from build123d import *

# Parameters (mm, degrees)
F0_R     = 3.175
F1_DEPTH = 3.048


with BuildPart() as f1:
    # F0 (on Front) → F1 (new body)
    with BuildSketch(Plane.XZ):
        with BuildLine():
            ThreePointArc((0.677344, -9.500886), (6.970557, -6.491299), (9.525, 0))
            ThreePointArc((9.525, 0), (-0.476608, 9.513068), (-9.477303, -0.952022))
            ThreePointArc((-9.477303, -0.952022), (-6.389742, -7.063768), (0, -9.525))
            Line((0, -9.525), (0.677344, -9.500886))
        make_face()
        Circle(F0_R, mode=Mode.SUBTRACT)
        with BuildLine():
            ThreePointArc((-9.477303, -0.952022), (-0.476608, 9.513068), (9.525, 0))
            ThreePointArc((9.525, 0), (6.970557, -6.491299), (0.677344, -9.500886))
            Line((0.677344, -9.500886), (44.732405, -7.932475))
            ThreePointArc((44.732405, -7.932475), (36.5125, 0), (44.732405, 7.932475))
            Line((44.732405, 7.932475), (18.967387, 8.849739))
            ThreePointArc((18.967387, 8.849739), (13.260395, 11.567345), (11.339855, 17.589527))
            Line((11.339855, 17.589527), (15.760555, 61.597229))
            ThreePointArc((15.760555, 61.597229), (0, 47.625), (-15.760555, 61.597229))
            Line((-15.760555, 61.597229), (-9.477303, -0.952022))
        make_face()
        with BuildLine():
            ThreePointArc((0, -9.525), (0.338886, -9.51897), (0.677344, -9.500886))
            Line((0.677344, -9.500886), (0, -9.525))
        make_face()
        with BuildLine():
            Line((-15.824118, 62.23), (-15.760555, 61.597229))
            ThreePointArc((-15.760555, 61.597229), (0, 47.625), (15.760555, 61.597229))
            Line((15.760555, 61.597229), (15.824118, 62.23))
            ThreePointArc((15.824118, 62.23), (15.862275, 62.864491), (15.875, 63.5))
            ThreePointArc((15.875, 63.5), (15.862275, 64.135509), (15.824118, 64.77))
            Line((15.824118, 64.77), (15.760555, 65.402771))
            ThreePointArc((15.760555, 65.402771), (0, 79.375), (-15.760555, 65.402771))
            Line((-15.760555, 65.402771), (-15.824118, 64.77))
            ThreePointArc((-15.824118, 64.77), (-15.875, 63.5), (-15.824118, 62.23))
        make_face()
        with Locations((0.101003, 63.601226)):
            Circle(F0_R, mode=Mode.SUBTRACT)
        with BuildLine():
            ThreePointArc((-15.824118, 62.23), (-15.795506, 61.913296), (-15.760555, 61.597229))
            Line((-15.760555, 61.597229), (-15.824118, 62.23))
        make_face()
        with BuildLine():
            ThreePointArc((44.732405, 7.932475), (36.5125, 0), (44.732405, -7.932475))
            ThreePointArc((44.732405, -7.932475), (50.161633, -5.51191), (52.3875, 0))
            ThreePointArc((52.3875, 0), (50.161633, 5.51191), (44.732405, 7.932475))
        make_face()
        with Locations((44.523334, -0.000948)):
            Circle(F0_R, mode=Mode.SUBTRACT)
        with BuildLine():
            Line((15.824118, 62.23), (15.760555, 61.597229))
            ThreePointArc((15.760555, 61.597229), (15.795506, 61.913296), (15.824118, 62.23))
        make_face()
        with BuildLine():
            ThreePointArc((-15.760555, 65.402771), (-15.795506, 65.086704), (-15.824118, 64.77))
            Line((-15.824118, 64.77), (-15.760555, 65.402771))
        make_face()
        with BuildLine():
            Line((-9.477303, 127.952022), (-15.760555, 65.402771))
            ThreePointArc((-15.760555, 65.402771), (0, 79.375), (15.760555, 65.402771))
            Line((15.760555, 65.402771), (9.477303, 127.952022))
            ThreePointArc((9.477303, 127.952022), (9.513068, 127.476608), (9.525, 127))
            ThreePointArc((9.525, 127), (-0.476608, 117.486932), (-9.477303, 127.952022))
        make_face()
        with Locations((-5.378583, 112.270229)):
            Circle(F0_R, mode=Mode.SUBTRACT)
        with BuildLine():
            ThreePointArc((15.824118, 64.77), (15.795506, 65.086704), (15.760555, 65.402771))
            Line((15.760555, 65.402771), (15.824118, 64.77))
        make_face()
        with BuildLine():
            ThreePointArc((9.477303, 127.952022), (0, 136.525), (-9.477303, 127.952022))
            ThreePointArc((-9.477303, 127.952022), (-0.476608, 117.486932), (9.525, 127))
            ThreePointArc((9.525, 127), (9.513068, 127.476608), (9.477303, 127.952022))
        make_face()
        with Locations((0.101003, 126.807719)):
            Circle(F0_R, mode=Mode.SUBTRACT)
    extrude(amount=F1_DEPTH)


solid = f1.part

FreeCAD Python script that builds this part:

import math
import FreeCAD as App
import Part
import Sketcher
from FreeCAD import Vector
Q = App.Units.Quantity

doc = App.newDocument("Part")
body = doc.addObject("PartDesign::Body", "Body")

sketch1 = body.newObject("Sketcher::SketchObject", "Sketch")
sketch1.AttachmentSupport = (doc.getObject("XZ_Plane"), [""])
sketch1.MapMode = "FlatFace"
sketch1.addGeometry([
    Part.LineSegment(Vector(0.677344, -9.500886, 0), Vector(44.732405, -7.932475, 0)),
    Part.ArcOfCircle(Part.Circle(Vector(44.449999, 0.000001, 0), Vector(0, 0, 1), 7.937501), math.radians(-87.961059), math.radians(-0.000005)),
    Part.ArcOfCircle(Part.Circle(Vector(44.449999, -0.000001, 0), Vector(0, 0, 1), 7.937501), math.radians(0.000005), math.radians(87.961059)),
    Part.LineSegment(Vector(44.732405, 7.932475, 0), Vector(18.967387, 8.849739, 0)),
    Part.ArcOfCircle(Part.Circle(Vector(19.250244, 16.794905, 0), Vector(0, 0, 1), 7.9502), math.radians(174.263714), math.radians(267.961067)),
    Part.LineSegment(Vector(11.339855, 17.589527, 0), Vector(15.760555, 61.597229, 0)),
    Part.ArcOfCircle(Part.Circle(Vector(0.002879, 63.499694, 0), Vector(0, 0, 1), 15.872105), math.radians(-6.884149), math.radians(-4.588297)),
    Part.ArcOfCircle(Part.Circle(Vector(0.000869, 63.499971, 0), Vector(0, 0, 1), 15.874131), math.radians(-4.588712), math.radians(0.000105)),
    Part.ArcOfCircle(Part.Circle(Vector(0.000869, 63.500029, 0), Vector(0, 0, 1), 15.874131), math.radians(-0.000105), math.radians(4.588712)),
    Part.ArcOfCircle(Part.Circle(Vector(0.002879, 63.500306, 0), Vector(0, 0, 1), 15.872105), math.radians(4.588297), math.radians(6.884149)),
    Part.LineSegment(Vector(15.760555, 65.402771, 0), Vector(9.477303, 127.952022, 0)),
    Part.ArcOfCircle(Part.Circle(Vector(0, 127, 0), Vector(0, 0, 1), 9.525), math.radians(5.736278), math.radians(174.263722)),
    Part.LineSegment(Vector(-9.477303, 127.952022, 0), Vector(-15.760555, 65.402771, 0)),
    Part.ArcOfCircle(Part.Circle(Vector(-0.002879, 63.500306, 0), Vector(0, 0, 1), 15.872105), math.radians(173.115851), math.radians(175.411703)),
    Part.ArcOfCircle(Part.Circle(Vector(-0.000143, 63.5, 0), Vector(0, 0, 1), 15.874857), math.radians(175.411393), math.radians(184.588607)),
    Part.ArcOfCircle(Part.Circle(Vector(-0.002879, 63.499694, 0), Vector(0, 0, 1), 15.872105), math.radians(-175.411703), math.radians(-173.115851)),
    Part.LineSegment(Vector(-15.760555, 61.597229, 0), Vector(-9.477303, -0.952022, 0)),
    Part.ArcOfCircle(Part.Circle(Vector(0, 0, 0), Vector(0, 0, 1), 9.525), math.radians(-174.26372), math.radians(-90.000001)),
    Part.ArcOfCircle(Part.Circle(Vector(0.000022, -0.000517, 0), Vector(0, 0, 1), 9.524483), math.radians(-90.000132), math.radians(-85.922038)),
    Part.Circle(Vector(0, 0, 0), Vector(0, 0, 1), 3.175),
    Part.Circle(Vector(44.523334, -0.000948, 0), Vector(0, 0, 1), 3.175),
    Part.Circle(Vector(0.101003, 63.601226, 0), Vector(0, 0, 1), 3.175),
    Part.Circle(Vector(-5.378583, 112.270229, 0), Vector(0, 0, 1), 3.175),
    Part.Circle(Vector(0.101003, 126.807719, 0), Vector(0, 0, 1), 3.175),
], False)
sketch1.addConstraint([
    Sketcher.Constraint("Tangent", 0, 2, 1, 1),
    Sketcher.Constraint("Tangent", 1, 2, 2, 1),
    Sketcher.Constraint("Tangent", 2, 2, 3, 1),
    Sketcher.Constraint("Tangent", 3, 2, 4, 2),
    Sketcher.Constraint("Tangent", 4, 1, 5, 1),
    Sketcher.Constraint("Coincident", 5, 2, 6, 1),
    Sketcher.Constraint("Coincident", 6, 2, 7, 1),
    Sketcher.Constraint("Coincident", 7, 2, 8, 1),
    Sketcher.Constraint("Coincident", 8, 2, 9, 1),
    Sketcher.Constraint("Coincident", 9, 2, 10, 1),
    Sketcher.Constraint("Tangent", 10, 2, 11, 1),
    Sketcher.Constraint("Tangent", 11, 2, 12, 1),
    Sketcher.Constraint("Coincident", 12, 2, 13, 1),
    Sketcher.Constraint("Coincident", 13, 2, 14, 1),
    Sketcher.Constraint("Coincident", 14, 2, 15, 1),
    Sketcher.Constraint("Coincident", 15, 2, 16, 1),
    Sketcher.Constraint("Tangent", 16, 2, 17, 1),
    Sketcher.Constraint("Coincident", 17, 2, 18, 1),
    Sketcher.Constraint("Coincident", 18, 2, 0, 1),
    Sketcher.Constraint("Coincident", 17, 3, -1, 1),
    Sketcher.Constraint("Coincident", 19, 3, -1, 1),
    Sketcher.Constraint("Equal", 1, 2),
    Sketcher.Constraint("Equal", 7, 8),
    Sketcher.Constraint("Equal", 6, 9),
    Sketcher.Constraint("Equal", 9, 13),
    Sketcher.Constraint("Equal", 13, 15),
    Sketcher.Constraint("Equal", 11, 17),
    Sketcher.Constraint("Equal", 19, 20),
    Sketcher.Constraint("Equal", 20, 21),
    Sketcher.Constraint("Equal", 21, 22),
    Sketcher.Constraint("Equal", 22, 23),
    Sketcher.Constraint("Symmetric", 9, 3, 13, 3, -2),
    Sketcher.Constraint("Symmetric", 6, 3, 15, 3, -2),
    Sketcher.Constraint("Symmetric", 0, 2, 2, 2, -1),
    Sketcher.Constraint("PointOnObject", 11, 3, -2),
    Sketcher.Constraint("PointOnObject", 1, 2, -1),
    Sketcher.Constraint("PointOnObject", 17, 2, -2),
    Sketcher.Constraint("Parallel", 5, 12),
    Sketcher.Constraint("Parallel", 10, 16),
    Sketcher.Constraint("Horizontal", 14, 3, 7, 2),
    Sketcher.Constraint("Horizontal", 9, 2, 12, 2),
    Sketcher.Constraint("Horizontal", 8, 2, 13, 2),
    Sketcher.Constraint("Horizontal", 6, 2, 14, 2),
    Sketcher.Constraint("Horizontal", 5, 2, 15, 2),
    Sketcher.Constraint("Vertical", 6, 3, 9, 3),
    Sketcher.Constraint("Vertical", 21, 3, 23, 3),
    Sketcher.Constraint("Vertical", 6, 2, 8, 2),
    Sketcher.Constraint("Vertical", 5, 2, 9, 2),
    Sketcher.Constraint("Diameter", 19, Q("0.25 in")),
    Sketcher.Constraint("DistanceY", -1, 1, 11, 3, Q("5 in")),
    Sketcher.Constraint("Radius", 1, Q("0.3125 in")),
    Sketcher.Constraint("Radius", 4, Q("0.313 in")),
    Sketcher.Constraint("Radius", 11, Q("0.375 in")),
    Sketcher.Constraint("DistanceY", 6, 2, 8, 2, Q("0.1 in")),
    Sketcher.Constraint("DistanceX", -1, 1, 1, 3, Q("1.75 in")),
    Sketcher.Constraint("DistanceX", -1, 1, 7, 2, Q("0.625 in")),
    Sketcher.Constraint("Radius", 7, 15.874131),
    Sketcher.Constraint("Radius", 6, 15.872105),
    Sketcher.Constraint("Radius", 14, 15.874857),
    Sketcher.Constraint("Radius", 18, 9.524483),
    Sketcher.Constraint("DistanceY", 4, 3, 9, 3, 46.705401),
    Sketcher.Constraint("DistanceY", 5, 2, 8, 3, 1.9028),
    Sketcher.Constraint("DistanceX", 23, 3, 10, 2, 9.3763),
    Sketcher.Constraint("Distance", 0, 44.082971),
    Sketcher.Constraint("Distance", 3, 25.781341),
    Sketcher.Constraint("Distance", 5, 44.229181),
    Sketcher.Constraint("DistanceY", -1, 1, 22, 3, 112.270229),
    Sketcher.Constraint("DistanceY", -1, 1, 23, 3, 126.807719),
    Sketcher.Constraint("DistanceY", 20, 3, 1, 3, 0.000949),
    Sketcher.Constraint("DistanceX", 4, 3, 20, 3, 25.27309),
    Sketcher.Constraint("DistanceY", 9, 3, 21, 3, 0.10092),
    Sketcher.Constraint("DistanceX", 22, 3, 14, 3, 5.37844),
])
pad1 = body.newObject("PartDesign::Pad", "Pad")
pad1.Profile = sketch1
pad1.Length = Q("0.12 in")

doc.recompute()
